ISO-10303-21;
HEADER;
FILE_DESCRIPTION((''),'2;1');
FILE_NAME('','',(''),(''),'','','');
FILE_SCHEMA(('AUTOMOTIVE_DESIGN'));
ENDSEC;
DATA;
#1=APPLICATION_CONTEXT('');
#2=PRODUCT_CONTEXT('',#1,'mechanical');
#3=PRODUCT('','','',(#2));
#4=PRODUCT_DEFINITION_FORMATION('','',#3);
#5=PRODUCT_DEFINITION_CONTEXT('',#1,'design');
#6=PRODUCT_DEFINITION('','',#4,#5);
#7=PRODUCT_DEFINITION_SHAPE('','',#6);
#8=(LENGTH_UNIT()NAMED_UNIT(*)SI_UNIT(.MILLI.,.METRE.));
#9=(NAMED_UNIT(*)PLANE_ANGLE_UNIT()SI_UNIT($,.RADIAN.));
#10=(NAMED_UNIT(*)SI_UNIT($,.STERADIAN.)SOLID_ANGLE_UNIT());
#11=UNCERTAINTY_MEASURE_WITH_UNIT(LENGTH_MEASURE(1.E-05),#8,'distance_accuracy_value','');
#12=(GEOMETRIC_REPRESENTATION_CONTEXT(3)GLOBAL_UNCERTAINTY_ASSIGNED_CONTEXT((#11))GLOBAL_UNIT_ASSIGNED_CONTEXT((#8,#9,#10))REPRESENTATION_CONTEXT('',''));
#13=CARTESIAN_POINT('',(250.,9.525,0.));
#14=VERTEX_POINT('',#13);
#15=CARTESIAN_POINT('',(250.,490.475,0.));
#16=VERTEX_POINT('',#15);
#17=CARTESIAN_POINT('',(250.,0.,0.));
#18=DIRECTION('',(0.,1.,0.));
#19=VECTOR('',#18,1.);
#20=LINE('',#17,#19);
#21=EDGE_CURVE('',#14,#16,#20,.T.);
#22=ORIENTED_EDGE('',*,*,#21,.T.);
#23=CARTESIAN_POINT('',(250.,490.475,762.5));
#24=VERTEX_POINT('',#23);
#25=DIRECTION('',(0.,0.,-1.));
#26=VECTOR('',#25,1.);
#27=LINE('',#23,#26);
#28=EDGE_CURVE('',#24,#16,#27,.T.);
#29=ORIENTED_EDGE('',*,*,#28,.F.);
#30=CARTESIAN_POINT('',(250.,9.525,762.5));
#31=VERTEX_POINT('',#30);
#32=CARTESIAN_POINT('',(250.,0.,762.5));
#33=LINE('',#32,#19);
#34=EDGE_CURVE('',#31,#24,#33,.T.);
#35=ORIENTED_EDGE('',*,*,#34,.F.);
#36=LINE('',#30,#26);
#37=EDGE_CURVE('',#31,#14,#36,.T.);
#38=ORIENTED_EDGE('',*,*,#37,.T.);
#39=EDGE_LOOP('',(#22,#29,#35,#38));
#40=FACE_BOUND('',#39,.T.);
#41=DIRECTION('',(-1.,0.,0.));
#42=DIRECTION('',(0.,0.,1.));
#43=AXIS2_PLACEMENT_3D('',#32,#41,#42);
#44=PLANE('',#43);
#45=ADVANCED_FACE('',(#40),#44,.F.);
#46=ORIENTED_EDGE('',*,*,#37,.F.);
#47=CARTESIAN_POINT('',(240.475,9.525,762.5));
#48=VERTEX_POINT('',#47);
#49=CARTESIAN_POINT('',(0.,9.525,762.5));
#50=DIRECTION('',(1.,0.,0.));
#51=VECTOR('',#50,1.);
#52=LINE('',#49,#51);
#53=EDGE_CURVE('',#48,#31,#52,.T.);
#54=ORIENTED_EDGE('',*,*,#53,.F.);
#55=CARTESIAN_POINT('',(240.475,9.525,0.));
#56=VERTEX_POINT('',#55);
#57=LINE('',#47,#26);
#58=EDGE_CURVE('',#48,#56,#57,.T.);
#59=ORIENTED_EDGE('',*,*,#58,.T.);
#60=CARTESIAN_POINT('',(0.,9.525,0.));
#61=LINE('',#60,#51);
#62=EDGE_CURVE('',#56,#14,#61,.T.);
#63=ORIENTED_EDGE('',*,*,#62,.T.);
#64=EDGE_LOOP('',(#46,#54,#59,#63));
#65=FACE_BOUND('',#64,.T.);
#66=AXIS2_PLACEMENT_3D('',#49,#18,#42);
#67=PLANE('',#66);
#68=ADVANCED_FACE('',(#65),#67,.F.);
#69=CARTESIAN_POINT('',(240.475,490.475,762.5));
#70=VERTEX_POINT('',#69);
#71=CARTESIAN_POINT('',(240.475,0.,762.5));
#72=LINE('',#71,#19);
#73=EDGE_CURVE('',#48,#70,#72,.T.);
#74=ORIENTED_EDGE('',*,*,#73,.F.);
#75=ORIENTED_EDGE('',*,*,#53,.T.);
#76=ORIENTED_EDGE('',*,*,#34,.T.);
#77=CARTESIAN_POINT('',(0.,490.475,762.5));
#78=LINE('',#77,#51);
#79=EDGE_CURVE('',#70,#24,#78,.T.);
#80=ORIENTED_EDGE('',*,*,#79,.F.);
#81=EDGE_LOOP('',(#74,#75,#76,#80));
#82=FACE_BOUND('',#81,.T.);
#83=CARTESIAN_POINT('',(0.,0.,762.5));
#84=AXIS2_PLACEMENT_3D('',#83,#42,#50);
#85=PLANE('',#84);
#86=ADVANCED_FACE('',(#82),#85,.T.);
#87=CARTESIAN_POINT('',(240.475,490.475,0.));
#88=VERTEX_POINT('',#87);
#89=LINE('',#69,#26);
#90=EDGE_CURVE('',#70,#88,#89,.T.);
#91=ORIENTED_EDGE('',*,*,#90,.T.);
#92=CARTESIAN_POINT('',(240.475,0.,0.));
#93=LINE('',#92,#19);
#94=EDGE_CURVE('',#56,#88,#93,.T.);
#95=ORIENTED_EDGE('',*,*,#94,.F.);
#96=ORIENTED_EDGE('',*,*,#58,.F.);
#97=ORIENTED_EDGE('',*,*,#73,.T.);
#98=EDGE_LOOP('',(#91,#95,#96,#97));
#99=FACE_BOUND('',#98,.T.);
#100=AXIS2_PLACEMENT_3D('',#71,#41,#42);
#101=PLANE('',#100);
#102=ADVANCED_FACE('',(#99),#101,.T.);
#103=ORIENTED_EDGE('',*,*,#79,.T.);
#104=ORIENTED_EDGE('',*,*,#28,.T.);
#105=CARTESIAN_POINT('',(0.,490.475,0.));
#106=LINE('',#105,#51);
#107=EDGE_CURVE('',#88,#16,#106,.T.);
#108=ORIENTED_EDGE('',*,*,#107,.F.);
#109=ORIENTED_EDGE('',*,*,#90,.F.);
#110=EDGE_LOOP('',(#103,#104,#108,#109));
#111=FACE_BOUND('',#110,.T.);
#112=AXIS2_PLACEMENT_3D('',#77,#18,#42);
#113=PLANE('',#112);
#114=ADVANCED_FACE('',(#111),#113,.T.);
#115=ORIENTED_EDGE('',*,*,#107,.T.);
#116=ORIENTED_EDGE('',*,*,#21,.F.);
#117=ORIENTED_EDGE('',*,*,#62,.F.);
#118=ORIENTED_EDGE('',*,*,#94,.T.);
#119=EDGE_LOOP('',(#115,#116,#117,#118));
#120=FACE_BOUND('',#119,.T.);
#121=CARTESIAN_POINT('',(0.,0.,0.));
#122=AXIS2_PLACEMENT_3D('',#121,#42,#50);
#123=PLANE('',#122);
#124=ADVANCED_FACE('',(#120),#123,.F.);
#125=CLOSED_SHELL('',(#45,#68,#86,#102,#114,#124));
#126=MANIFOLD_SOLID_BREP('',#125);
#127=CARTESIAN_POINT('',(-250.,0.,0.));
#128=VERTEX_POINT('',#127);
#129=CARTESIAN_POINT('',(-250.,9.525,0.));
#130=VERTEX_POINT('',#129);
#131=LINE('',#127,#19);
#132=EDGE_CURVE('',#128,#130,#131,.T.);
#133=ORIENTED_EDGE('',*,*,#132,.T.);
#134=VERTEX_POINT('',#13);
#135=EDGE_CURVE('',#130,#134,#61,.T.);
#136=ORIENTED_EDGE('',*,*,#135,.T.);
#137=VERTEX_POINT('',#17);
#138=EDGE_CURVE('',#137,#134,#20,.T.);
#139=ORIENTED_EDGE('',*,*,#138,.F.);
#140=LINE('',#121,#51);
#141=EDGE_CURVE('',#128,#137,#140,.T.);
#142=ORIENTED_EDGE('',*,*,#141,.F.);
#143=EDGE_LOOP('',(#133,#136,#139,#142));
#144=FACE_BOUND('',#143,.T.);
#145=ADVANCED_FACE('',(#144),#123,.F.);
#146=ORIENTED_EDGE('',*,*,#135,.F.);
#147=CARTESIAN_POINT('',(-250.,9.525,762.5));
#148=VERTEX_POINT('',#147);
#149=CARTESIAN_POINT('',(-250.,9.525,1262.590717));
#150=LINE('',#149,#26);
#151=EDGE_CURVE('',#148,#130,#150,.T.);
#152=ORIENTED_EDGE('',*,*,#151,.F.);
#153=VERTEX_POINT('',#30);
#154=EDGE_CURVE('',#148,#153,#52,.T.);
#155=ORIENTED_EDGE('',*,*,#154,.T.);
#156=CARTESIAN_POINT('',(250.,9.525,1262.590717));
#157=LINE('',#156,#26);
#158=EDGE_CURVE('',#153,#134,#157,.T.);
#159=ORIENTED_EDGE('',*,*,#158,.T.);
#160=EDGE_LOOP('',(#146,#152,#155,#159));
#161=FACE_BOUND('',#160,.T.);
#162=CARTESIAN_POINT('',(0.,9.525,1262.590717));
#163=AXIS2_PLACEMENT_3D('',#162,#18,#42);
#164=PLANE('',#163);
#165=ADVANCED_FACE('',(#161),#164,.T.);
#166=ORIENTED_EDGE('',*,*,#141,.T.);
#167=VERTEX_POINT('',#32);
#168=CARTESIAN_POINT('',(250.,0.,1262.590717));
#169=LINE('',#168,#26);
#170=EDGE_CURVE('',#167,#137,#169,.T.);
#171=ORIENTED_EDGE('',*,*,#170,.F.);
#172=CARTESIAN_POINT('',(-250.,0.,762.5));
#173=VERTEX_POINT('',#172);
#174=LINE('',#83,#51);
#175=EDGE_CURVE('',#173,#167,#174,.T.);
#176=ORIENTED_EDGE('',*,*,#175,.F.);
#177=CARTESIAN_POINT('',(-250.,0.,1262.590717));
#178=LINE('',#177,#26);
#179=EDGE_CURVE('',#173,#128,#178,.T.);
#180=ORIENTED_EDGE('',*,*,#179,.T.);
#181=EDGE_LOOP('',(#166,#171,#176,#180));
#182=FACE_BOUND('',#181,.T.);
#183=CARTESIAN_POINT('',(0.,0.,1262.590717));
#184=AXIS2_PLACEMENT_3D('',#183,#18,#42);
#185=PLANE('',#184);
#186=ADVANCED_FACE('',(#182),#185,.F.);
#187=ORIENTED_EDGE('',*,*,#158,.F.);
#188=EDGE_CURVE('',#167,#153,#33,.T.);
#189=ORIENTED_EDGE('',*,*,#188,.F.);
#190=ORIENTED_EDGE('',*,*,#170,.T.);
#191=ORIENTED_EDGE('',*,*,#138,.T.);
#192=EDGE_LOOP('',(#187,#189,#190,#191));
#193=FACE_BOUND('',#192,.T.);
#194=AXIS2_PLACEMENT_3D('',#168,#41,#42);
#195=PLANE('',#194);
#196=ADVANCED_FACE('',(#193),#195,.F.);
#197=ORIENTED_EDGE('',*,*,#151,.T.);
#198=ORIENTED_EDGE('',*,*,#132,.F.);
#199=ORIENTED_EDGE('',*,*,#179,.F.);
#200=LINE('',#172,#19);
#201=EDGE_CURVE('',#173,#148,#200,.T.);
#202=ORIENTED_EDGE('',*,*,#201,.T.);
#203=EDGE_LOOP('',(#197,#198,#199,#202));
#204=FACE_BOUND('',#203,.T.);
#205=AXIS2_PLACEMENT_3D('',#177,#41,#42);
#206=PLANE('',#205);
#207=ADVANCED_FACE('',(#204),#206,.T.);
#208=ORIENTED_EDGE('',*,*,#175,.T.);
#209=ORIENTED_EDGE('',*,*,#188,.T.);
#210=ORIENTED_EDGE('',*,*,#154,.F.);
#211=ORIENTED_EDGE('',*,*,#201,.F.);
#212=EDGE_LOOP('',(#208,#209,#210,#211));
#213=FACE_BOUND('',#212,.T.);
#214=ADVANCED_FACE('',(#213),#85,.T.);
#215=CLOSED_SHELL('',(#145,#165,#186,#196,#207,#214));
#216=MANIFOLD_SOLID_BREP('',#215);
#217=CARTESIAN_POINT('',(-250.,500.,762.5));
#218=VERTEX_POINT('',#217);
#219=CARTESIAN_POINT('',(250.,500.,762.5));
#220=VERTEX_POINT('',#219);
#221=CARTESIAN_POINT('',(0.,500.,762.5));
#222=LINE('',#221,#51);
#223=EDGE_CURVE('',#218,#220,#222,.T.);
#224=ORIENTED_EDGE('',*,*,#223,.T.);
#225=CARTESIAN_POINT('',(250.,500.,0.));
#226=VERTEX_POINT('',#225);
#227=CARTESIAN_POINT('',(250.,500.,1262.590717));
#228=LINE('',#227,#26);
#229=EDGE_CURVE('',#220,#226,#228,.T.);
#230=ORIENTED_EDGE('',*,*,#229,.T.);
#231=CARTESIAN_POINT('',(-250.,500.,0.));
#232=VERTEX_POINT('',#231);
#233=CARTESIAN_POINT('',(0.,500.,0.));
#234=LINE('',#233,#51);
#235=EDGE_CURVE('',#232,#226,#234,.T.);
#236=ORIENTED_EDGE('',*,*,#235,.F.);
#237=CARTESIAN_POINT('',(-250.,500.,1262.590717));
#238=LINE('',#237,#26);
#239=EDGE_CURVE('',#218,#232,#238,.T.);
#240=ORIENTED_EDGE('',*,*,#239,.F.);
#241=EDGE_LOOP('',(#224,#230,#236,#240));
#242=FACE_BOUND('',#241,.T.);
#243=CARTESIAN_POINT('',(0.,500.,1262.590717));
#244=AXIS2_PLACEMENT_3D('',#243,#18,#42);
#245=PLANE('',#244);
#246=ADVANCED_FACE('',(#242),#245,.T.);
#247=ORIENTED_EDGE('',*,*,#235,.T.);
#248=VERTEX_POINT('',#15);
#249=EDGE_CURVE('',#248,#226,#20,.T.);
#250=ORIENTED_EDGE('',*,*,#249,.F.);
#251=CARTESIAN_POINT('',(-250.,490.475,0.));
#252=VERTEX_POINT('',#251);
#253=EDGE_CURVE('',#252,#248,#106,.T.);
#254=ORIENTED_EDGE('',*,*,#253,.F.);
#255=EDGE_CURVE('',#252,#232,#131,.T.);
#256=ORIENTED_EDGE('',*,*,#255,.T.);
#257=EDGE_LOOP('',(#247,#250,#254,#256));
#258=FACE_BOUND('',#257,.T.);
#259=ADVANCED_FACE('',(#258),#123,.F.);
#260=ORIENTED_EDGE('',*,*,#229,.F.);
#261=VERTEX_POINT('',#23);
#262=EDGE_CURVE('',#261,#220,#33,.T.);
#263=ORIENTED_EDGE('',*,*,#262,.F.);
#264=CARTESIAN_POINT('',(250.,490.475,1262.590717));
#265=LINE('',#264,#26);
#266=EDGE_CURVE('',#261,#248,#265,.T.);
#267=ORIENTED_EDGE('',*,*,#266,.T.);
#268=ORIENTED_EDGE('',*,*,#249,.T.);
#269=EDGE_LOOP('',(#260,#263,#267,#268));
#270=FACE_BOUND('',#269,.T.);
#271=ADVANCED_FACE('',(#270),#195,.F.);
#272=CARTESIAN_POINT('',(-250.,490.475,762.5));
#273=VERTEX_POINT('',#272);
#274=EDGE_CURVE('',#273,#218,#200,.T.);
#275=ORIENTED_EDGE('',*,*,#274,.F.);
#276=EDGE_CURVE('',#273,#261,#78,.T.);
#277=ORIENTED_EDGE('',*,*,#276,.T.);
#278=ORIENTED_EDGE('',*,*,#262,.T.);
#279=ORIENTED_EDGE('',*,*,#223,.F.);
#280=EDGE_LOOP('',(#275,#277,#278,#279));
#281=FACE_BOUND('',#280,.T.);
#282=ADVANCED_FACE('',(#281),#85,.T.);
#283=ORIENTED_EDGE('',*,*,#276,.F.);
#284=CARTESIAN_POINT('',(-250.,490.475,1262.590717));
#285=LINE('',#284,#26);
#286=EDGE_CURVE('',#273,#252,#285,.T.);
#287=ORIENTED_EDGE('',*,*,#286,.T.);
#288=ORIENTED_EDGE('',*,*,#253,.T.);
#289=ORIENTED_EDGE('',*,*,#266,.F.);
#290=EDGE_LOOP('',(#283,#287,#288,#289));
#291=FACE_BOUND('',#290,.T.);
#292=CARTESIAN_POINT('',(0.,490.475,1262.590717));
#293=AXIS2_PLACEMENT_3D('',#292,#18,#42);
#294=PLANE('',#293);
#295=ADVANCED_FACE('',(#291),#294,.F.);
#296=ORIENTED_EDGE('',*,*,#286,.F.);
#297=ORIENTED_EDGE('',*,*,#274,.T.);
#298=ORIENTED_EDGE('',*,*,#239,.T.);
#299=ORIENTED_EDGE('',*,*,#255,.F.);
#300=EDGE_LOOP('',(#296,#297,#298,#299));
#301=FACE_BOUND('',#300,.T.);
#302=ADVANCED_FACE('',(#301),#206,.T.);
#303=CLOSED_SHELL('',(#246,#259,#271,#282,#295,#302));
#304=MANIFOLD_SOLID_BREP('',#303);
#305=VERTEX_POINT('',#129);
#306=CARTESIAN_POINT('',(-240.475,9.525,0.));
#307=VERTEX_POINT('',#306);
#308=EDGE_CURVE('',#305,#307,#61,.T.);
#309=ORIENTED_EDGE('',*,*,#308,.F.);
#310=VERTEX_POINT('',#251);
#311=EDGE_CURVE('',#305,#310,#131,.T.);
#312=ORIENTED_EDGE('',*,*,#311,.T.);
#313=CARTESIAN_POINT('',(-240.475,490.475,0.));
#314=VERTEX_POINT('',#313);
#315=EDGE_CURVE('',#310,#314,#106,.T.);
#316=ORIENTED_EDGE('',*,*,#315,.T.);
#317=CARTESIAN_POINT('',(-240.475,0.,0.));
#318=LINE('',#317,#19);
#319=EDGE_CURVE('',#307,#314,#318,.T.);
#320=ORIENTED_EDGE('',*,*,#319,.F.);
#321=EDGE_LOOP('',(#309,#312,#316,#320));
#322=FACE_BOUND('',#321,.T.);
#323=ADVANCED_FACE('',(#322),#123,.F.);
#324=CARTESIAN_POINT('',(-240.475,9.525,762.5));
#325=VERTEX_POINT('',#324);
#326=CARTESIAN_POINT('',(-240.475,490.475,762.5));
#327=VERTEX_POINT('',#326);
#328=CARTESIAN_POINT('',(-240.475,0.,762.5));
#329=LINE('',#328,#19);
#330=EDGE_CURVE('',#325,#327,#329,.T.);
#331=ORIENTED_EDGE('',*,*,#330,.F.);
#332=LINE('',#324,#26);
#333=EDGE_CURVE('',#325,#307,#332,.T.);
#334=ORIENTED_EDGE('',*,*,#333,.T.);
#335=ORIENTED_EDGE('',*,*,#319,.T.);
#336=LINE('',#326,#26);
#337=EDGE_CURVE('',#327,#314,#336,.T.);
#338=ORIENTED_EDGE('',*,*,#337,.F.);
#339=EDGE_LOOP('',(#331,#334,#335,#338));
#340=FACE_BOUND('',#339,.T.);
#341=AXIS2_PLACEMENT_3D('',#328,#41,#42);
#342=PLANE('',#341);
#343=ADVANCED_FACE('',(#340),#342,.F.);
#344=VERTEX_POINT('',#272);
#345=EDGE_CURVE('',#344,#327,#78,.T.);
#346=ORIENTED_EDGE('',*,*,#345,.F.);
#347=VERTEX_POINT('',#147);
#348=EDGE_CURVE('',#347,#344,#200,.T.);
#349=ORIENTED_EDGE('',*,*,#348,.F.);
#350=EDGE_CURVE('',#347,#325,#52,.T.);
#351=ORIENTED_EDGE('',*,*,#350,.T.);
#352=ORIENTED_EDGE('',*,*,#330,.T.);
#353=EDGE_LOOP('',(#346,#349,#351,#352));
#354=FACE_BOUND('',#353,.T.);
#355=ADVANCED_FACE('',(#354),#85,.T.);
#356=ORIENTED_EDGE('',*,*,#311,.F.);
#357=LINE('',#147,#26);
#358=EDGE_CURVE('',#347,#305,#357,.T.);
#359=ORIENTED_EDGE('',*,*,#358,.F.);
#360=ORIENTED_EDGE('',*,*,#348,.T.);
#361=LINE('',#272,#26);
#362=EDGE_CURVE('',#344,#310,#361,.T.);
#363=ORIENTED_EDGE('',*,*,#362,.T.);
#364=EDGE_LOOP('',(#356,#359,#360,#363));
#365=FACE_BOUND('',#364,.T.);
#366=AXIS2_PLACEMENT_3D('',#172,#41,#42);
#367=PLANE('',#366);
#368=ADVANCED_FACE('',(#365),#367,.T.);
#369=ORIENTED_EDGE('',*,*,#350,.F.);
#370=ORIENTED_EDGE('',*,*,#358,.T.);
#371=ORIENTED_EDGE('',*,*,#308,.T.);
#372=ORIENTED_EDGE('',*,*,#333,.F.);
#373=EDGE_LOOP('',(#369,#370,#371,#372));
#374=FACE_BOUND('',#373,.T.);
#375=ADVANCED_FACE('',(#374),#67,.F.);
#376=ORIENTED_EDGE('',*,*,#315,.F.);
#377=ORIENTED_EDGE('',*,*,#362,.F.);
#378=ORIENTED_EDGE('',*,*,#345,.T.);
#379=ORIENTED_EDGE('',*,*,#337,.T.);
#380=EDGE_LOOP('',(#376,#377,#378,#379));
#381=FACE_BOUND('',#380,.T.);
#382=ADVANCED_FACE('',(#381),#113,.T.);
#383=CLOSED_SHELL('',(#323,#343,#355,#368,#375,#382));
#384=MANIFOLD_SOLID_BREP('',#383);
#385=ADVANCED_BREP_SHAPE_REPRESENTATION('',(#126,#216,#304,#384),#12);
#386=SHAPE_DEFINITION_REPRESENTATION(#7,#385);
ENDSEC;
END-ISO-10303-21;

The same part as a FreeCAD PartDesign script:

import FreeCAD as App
import Part
import Sketcher
from FreeCAD import Vector
Q = App.Units.Quantity


def add_polygon(sketch, points):
    """Adds a closed chain of lines whose ends are joined by coincident constraints."""
    first, n = sketch.GeometryCount, len(points)
    for a, b in zip(points, points[1:] + points[:1]):
        sketch.addGeometry(Part.LineSegment(App.Vector(*a, 0), App.Vector(*b, 0)), False)
    for i in range(n):
        sketch.addConstraint(Sketcher.Constraint("Coincident", first + i, 2, first + (i + 1) % n, 1))

doc = App.newDocument("Part")
params = doc.addObject("Spreadsheet::Sheet", "Params")
for row, (alias, value) in enumerate([
    ("sketch1_height", "480.95 mm"),
    ("pad1_length", "762.5 mm"),
    ("sketch2_height", "480.95 mm"),
    ("pad2_length", "762.5 mm"),
    ("sketch3_width", "500 mm"),
    ("pad3_length", "762.5 mm"),
    ("sketch4_width", "500 mm"),
    ("pad4_length", "762.5 mm"),
], start=1):
    params.set(f"A{row}", alias)
    params.set(f"B{row}", "=" + value)
    params.setAlias(f"B{row}", alias)

body = doc.addObject("PartDesign::Body", "Body")

# Sketch on XY plane
sketch1 = body.newObject("Sketcher::SketchObject", "Sketch")
sketch1.AttachmentSupport = (doc.getObject("XY_Plane"), [""])
sketch1.MapMode = "FlatFace"
add_polygon(sketch1, [(-250, 490), (-250, 10), (-240, 10), (-240, 490)])  # lines 0-3
sketch1.addConstraint([
    Sketcher.Constraint("Vertical", 0),
    Sketcher.Constraint("Horizontal", 1),
    Sketcher.Constraint("Vertical", 2),
    Sketcher.Constraint("Horizontal", 3),
    Sketcher.Constraint("DistanceX", 0, 2, -1, 1, Q("250 mm")),
    Sketcher.Constraint("DistanceY", 0, 2, 0, 1, Q("480.95 mm")),
    Sketcher.Constraint("DistanceX", 1, 1, 1, 2, Q("9.525 mm")),
    Sketcher.Constraint("DistanceY", -1, 1, 0, 2, Q("9.525 mm")),
])
sketch1.setExpression("Constraints[9]", "Params.sketch1_height")
pad1 = body.newObject("PartDesign::Pad", "Pad")
pad1.Profile = sketch1
pad1.setExpression("Length", "Params.pad1_length")
body2 = doc.addObject("PartDesign::Body", "Body001")

# Sketch on XY plane
sketch2 = body2.newObject("Sketcher::SketchObject", "Sketch001")
sketch2.AttachmentSupport = (doc.getObject("XY_Plane001"), [""])
sketch2.MapMode = "FlatFace"
add_polygon(sketch2, [(240, 490), (240, 10), (250, 10), (250, 490)])  # lines 0-3
sketch2.addConstraint([
    Sketcher.Constraint("Vertical", 0),
    Sketcher.Constraint("Horizontal", 1),
    Sketcher.Constraint("Vertical", 2),
    Sketcher.Constraint("Horizontal", 3),
    Sketcher.Constraint("DistanceX", -1, 1, 1, 2, Q("250 mm")),
    Sketcher.Constraint("DistanceY", 0, 2, 0, 1, Q("480.95 mm")),
    Sketcher.Constraint("DistanceX", 1, 1, 1, 2, Q("9.525 mm")),
    Sketcher.Constraint("DistanceY", -1, 1, 0, 2, Q("9.525 mm")),
])
sketch2.setExpression("Constraints[9]", "Params.sketch2_height")
pad2 = body2.newObject("PartDesign::Pad", "Pad001")
pad2.Profile = sketch2
pad2.setExpression("Length", "Params.pad2_length")
body3 = doc.addObject("PartDesign::Body", "Body002")

# Sketch on XY plane
sketch3 = body3.newObject("Sketcher::SketchObject", "Sketch002")
sketch3.AttachmentSupport = (doc.getObject("XY_Plane002"), [""])
sketch3.MapMode = "FlatFace"
add_polygon(sketch3, [(-250, 490), (250, 490), (250, 500), (-250, 500)])  # lines 0-3
sketch3.addConstraint([
    Sketcher.Constraint("Horizontal", 0),
    Sketcher.Constraint("Vertical", 1),
    Sketcher.Constraint("Horizontal", 2),
    Sketcher.Constraint("Vertical", 3),
    Sketcher.Constraint("DistanceX", 0, 1, 0, 2, Q("500 mm")),
    Sketcher.Constraint("DistanceX", -1, 1, 0, 2, Q("250 mm")),
    Sketcher.Constraint("DistanceY", -1, 1, 1, 2, Q("500 mm")),
    Sketcher.Constraint("DistanceY", 1, 1, 1, 2, Q("9.525 mm")),
])
sketch3.setExpression("Constraints[8]", "Params.sketch3_width")
pad3 = body3.newObject("PartDesign::Pad", "Pad002")
pad3.Profile = sketch3
pad3.setExpression("Length", "Params.pad3_length")
body4 = doc.addObject("PartDesign::Body", "Body003")

# Sketch on XY plane
sketch4 = body4.newObject("Sketcher::SketchObject", "Sketch003")
sketch4.AttachmentSupport = (doc.getObject("XY_Plane003"), [""])
sketch4.MapMode = "FlatFace"
add_polygon(sketch4, [(-250, 10), (-250, 0), (250, 0), (250, 10)])  # lines 0-3
sketch4.addConstraint([
    Sketcher.Constraint("Vertical", 0),
    Sketcher.Constraint("Horizontal", 1),
    Sketcher.Constraint("Vertical", 2),
    Sketcher.Constraint("Horizontal", 3),
    Sketcher.Constraint("Symmetric", 0, 2, 1, 2, -1, 1),
    Sketcher.Constraint("DistanceX", 1, 1, 1, 2, Q("500 mm")),
    Sketcher.Constraint("DistanceY", 0, 2, 0, 1, Q("9.525 mm")),
])
sketch4.setExpression("Constraints[9]", "Params.sketch4_width")
pad4 = body4.newObject("PartDesign::Pad", "Pad003")
pad4.Profile = sketch4
pad4.setExpression("Length", "Params.pad4_length")

doc.recompute()
